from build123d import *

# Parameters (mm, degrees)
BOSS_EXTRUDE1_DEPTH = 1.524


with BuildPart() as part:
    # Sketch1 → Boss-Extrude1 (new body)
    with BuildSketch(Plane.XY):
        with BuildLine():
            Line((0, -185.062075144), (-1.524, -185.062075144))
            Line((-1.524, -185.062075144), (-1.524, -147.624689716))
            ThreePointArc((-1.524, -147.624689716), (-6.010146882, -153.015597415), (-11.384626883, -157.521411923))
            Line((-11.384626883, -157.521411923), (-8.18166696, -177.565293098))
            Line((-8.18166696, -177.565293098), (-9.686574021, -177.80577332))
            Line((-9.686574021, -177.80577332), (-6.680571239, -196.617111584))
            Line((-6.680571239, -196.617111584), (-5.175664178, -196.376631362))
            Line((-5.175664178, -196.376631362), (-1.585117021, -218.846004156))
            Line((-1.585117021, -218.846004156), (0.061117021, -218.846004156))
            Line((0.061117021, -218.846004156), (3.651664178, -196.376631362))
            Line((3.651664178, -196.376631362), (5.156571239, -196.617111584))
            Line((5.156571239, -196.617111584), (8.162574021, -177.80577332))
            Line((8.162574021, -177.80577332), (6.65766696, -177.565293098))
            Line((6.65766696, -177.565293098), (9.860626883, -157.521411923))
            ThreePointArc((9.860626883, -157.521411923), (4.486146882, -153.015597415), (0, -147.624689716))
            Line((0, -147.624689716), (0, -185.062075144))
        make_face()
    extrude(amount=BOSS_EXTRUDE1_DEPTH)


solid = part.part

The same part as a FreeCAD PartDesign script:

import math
import FreeCAD as App
import Part
import Sketcher
from FreeCAD import Vector
Q = App.Units.Quantity

doc = App.newDocument("Part")
params = doc.addObject("Spreadsheet::Sheet", "Params")
for row, (alias, value) in enumerate([
    ("sketch1_width", "0.06 in"),
    ("sketch1_length", "0.06 in"),
    ("sketch1_length2", "0.75 in"),
    ("sketch1_length3", "0.06 in"),
    ("sketch1_length4", "0.06 in"),
    ("pad1_length", "0.06 in"),
], start=1):
    params.set(f"A{row}", alias)
    params.set(f"B{row}", "=" + value)
    params.setAlias(f"B{row}", alias)

body = doc.addObject("PartDesign::Body", "Body")

# Sketch on XY plane
sketch1 = body.newObject("Sketcher::SketchObject", "Sketch")
sketch1.AttachmentSupport = (doc.getObject("XY_Plane"), [""])
sketch1.MapMode = "FlatFace"
sketch1.addGeometry(Part.LineSegment(Vector(0, -185.062075, 0), Vector(-1.524, -185.062075, 0)), False)
sketch1.addGeometry(Part.LineSegment(Vector(-1.524, -185.062075, 0), Vector(-1.524, -147.62469, 0)), False)
sketch1.addGeometry(Part.ArcOfCircle(Part.Circle(Vector(-33.796527, -125.33056, 0), Vector(0, 0, 1), 39.224281), math.radians(-55.15361), math.radians(-34.637039)), False)
sketch1.addGeometry(Part.LineSegment(Vector(-11.384627, -157.521412, 0), Vector(-8.181667, -177.565293, 0)), False)
sketch1.addGeometry(Part.LineSegment(Vector(-8.181667, -177.565293, 0), Vector(-9.686574, -177.805773, 0)), False)
sketch1.addGeometry(Part.LineSegment(Vector(-9.686574, -177.805773, 0), Vector(-6.680571, -196.617112, 0)), False)
sketch1.addGeometry(Part.LineSegment(Vector(-6.680571, -196.617112, 0), Vector(-5.175664, -196.376631, 0)), False)
sketch1.addGeometry(Part.LineSegment(Vector(-5.175664, -196.376631, 0), Vector(-1.585117, -218.846004, 0)), False)
sketch1.addGeometry(Part.LineSegment(Vector(-1.585117, -218.846004, 0), Vector(0.061117, -218.846004, 0)), False)
sketch1.addGeometry(Part.LineSegment(Vector(0.061117, -218.846004, 0), Vector(3.651664, -196.376631, 0)), False)
sketch1.addGeometry(Part.LineSegment(Vector(3.651664, -196.376631, 0), Vector(5.156571, -196.617112, 0)), False)
sketch1.addGeometry(Part.LineSegment(Vector(5.156571, -196.617112, 0), Vector(8.162574, -177.805773, 0)), False)
sketch1.addGeometry(Part.LineSegment(Vector(8.162574, -177.805773, 0), Vector(6.657667, -177.565293, 0)), False)
sketch1.addGeometry(Part.LineSegment(Vector(6.657667, -177.565293, 0), Vector(9.860627, -157.521412, 0)), False)
sketch1.addGeometry(Part.ArcOfCircle(Part.Circle(Vector(32.272527, -125.33056, 0), Vector(0, 0, 1), 39.224281), math.radians(-145.362961), math.radians(-124.84639)), False)
sketch1.addGeometry(Part.LineSegment(Vector(0, -147.62469, 0), Vector(0, -185.062075, 0)), False)
sketch1.addConstraint(Sketcher.Constraint("Coincident", 0, 2, 1, 1))
sketch1.addConstraint(Sketcher.Constraint("Coincident", 1, 2, 2, 2))
sketch1.addConstraint(Sketcher.Constraint("Coincident", 2, 1, 3, 1))
sketch1.addConstraint(Sketcher.Constraint("Coincident", 3, 2, 4, 1))
sketch1.addConstraint(Sketcher.Constraint("Coincident", 4, 2, 5, 1))
sketch1.addConstraint(Sketcher.Constraint("Coincident", 5, 2, 6, 1))
sketch1.addConstraint(Sketcher.Constraint("Coincident", 6, 2, 7, 1))
sketch1.addConstraint(Sketcher.Constraint("Coincident", 7, 2, 8, 1))
sketch1.addConstraint(Sketcher.Constraint("Coincident", 8, 2, 9, 1))
sketch1.addConstraint(Sketcher.Constraint("Coincident", 9, 2, 10, 1))
sketch1.addConstraint(Sketcher.Constraint("Coincident", 10, 2, 11, 1))
sketch1.addConstraint(Sketcher.Constraint("Coincident", 11, 2, 12, 1))
sketch1.addConstraint(Sketcher.Constraint("Coincident", 12, 2, 13, 1))
sketch1.addConstraint(Sketcher.Constraint("Coincident", 13, 2, 14, 2))
sketch1.addConstraint(Sketcher.Constraint("Coincident", 14, 1, 15, 1))
sketch1.addConstraint(Sketcher.Constraint("Coincident", 15, 2, 0, 1))
sketch1.addConstraint(Sketcher.Constraint("Horizontal", 0))
sketch1.addConstraint(Sketcher.Constraint("Vertical", 1))
sketch1.addConstraint(Sketcher.Constraint("Horizontal", 8))
sketch1.addConstraint(Sketcher.Constraint("Vertical", 15))
sketch1.addConstraint(Sketcher.Constraint("PointOnObject", 14, 1, -2))
sketch1.addConstraint(Sketcher.Constraint("DistanceX", 0, 2, 0, 1, Q("0.06 in")))
sketch1.addConstraint(Sketcher.Constraint("Distance", 4, Q("0.06 in")))
sketch1.addConstraint(Sketcher.Constraint("Distance", 5, Q("0.75 in")))
sketch1.addConstraint(Sketcher.Constraint("Distance", 6, Q("0.06 in")))
sketch1.addConstraint(Sketcher.Constraint("Distance", 10, Q("0.06 in")))
sketch1.addConstraint(Sketcher.Constraint("Distance", 11, Q("0.75 in")))
sketch1.addConstraint(Sketcher.Constraint("Distance", 12, Q("0.06 in")))
sketch1.addConstraint(Sketcher.Constraint("Radius", 2, Q("39.224281 mm")))
sketch1.addConstraint(Sketcher.Constraint("Radius", 14, Q("39.224281 mm")))
sketch1.addConstraint(Sketcher.Constraint("DistanceX", 2, 3, 2, 1, Q("22.4119 mm")))
sketch1.addConstraint(Sketcher.Constraint("DistanceY", 0, 2, 4, 2, Q("7.256302 mm")))
sketch1.addConstraint(Sketcher.Constraint("DistanceY", 5, 2, 2, 1, Q("39.0957 mm")))
sketch1.addConstraint(Sketcher.Constraint("DistanceY", 0, 2, 11, 2, Q("7.256302 mm")))
sketch1.addConstraint(Sketcher.Constraint("Distance", 3, Q("20.29818 mm")))
sketch1.addConstraint(Sketcher.Constraint("Distance", 13, Q("20.29818 mm")))
sketch1.addConstraint(Sketcher.Constraint("DistanceX", 8, 1, 8, 2, Q("1.646234 mm")))
sketch1.addConstraint(Sketcher.Constraint("DistanceY", 1, 1, 1, 2, Q("37.437385 mm")))
sketch1.addConstraint(Sketcher.Constraint("DistanceY", 15, 2, 15, 1, Q("37.437385 mm")))
sketch1.addConstraint(Sketcher.Constraint("DistanceY", 2, 3, -1, 1, Q("125.33056 mm")))
sketch1.addConstraint(Sketcher.Constraint("DistanceY", 14, 3, -1, 1, Q("125.33056 mm")))
sketch1.addConstraint(Sketcher.Constraint("DistanceY", 1, 2, -1, 1, Q("147.62469 mm")))
sketch1.addConstraint(Sketcher.Constraint("DistanceX", 5, 2, -1, 1, Q("6.680571 mm")))
sketch1.addConstraint(Sketcher.Constraint("DistanceY", 6, 2, -1, 1, Q("196.376631 mm")))
sketch1.addConstraint(Sketcher.Constraint("DistanceY", 9, 2, -1, 1, Q("196.376631 mm")))
sketch1.addConstraint(Sketcher.Constraint("DistanceX", -1, 1, 10, 2, Q("5.156571 mm")))
sketch1.addConstraint(Sketcher.Constraint("DistanceY", 10, 2, -1, 1, Q("196.617112 mm")))
sketch1.addConstraint(Sketcher.Constraint("DistanceY", 13, 2, -1, 1, Q("157.521412 mm")))
sketch1.addConstraint(Sketcher.Constraint("DistanceY", 7, 2, 0, 2, Q("33.783929 mm")))
sketch1.addConstraint(Sketcher.Constraint("DistanceX", 3, 2, 7, 2, Q("6.59655 mm")))
sketch1.setExpression("Constraints[21]", "Params.sketch1_width")
sketch1.setExpression("Constraints[22]", "Params.sketch1_length")
sketch1.setExpression("Constraints[23]", "Params.sketch1_length2")
sketch1.setExpression("Constraints[24]", "Params.sketch1_length3")
sketch1.setExpression("Constraints[25]", "Params.sketch1_length4")
pad1 = body.newObject("PartDesign::Pad", "Pad")
pad1.Profile = sketch1
pad1.setExpression("Length", "Params.pad1_length")

doc.recompute()
